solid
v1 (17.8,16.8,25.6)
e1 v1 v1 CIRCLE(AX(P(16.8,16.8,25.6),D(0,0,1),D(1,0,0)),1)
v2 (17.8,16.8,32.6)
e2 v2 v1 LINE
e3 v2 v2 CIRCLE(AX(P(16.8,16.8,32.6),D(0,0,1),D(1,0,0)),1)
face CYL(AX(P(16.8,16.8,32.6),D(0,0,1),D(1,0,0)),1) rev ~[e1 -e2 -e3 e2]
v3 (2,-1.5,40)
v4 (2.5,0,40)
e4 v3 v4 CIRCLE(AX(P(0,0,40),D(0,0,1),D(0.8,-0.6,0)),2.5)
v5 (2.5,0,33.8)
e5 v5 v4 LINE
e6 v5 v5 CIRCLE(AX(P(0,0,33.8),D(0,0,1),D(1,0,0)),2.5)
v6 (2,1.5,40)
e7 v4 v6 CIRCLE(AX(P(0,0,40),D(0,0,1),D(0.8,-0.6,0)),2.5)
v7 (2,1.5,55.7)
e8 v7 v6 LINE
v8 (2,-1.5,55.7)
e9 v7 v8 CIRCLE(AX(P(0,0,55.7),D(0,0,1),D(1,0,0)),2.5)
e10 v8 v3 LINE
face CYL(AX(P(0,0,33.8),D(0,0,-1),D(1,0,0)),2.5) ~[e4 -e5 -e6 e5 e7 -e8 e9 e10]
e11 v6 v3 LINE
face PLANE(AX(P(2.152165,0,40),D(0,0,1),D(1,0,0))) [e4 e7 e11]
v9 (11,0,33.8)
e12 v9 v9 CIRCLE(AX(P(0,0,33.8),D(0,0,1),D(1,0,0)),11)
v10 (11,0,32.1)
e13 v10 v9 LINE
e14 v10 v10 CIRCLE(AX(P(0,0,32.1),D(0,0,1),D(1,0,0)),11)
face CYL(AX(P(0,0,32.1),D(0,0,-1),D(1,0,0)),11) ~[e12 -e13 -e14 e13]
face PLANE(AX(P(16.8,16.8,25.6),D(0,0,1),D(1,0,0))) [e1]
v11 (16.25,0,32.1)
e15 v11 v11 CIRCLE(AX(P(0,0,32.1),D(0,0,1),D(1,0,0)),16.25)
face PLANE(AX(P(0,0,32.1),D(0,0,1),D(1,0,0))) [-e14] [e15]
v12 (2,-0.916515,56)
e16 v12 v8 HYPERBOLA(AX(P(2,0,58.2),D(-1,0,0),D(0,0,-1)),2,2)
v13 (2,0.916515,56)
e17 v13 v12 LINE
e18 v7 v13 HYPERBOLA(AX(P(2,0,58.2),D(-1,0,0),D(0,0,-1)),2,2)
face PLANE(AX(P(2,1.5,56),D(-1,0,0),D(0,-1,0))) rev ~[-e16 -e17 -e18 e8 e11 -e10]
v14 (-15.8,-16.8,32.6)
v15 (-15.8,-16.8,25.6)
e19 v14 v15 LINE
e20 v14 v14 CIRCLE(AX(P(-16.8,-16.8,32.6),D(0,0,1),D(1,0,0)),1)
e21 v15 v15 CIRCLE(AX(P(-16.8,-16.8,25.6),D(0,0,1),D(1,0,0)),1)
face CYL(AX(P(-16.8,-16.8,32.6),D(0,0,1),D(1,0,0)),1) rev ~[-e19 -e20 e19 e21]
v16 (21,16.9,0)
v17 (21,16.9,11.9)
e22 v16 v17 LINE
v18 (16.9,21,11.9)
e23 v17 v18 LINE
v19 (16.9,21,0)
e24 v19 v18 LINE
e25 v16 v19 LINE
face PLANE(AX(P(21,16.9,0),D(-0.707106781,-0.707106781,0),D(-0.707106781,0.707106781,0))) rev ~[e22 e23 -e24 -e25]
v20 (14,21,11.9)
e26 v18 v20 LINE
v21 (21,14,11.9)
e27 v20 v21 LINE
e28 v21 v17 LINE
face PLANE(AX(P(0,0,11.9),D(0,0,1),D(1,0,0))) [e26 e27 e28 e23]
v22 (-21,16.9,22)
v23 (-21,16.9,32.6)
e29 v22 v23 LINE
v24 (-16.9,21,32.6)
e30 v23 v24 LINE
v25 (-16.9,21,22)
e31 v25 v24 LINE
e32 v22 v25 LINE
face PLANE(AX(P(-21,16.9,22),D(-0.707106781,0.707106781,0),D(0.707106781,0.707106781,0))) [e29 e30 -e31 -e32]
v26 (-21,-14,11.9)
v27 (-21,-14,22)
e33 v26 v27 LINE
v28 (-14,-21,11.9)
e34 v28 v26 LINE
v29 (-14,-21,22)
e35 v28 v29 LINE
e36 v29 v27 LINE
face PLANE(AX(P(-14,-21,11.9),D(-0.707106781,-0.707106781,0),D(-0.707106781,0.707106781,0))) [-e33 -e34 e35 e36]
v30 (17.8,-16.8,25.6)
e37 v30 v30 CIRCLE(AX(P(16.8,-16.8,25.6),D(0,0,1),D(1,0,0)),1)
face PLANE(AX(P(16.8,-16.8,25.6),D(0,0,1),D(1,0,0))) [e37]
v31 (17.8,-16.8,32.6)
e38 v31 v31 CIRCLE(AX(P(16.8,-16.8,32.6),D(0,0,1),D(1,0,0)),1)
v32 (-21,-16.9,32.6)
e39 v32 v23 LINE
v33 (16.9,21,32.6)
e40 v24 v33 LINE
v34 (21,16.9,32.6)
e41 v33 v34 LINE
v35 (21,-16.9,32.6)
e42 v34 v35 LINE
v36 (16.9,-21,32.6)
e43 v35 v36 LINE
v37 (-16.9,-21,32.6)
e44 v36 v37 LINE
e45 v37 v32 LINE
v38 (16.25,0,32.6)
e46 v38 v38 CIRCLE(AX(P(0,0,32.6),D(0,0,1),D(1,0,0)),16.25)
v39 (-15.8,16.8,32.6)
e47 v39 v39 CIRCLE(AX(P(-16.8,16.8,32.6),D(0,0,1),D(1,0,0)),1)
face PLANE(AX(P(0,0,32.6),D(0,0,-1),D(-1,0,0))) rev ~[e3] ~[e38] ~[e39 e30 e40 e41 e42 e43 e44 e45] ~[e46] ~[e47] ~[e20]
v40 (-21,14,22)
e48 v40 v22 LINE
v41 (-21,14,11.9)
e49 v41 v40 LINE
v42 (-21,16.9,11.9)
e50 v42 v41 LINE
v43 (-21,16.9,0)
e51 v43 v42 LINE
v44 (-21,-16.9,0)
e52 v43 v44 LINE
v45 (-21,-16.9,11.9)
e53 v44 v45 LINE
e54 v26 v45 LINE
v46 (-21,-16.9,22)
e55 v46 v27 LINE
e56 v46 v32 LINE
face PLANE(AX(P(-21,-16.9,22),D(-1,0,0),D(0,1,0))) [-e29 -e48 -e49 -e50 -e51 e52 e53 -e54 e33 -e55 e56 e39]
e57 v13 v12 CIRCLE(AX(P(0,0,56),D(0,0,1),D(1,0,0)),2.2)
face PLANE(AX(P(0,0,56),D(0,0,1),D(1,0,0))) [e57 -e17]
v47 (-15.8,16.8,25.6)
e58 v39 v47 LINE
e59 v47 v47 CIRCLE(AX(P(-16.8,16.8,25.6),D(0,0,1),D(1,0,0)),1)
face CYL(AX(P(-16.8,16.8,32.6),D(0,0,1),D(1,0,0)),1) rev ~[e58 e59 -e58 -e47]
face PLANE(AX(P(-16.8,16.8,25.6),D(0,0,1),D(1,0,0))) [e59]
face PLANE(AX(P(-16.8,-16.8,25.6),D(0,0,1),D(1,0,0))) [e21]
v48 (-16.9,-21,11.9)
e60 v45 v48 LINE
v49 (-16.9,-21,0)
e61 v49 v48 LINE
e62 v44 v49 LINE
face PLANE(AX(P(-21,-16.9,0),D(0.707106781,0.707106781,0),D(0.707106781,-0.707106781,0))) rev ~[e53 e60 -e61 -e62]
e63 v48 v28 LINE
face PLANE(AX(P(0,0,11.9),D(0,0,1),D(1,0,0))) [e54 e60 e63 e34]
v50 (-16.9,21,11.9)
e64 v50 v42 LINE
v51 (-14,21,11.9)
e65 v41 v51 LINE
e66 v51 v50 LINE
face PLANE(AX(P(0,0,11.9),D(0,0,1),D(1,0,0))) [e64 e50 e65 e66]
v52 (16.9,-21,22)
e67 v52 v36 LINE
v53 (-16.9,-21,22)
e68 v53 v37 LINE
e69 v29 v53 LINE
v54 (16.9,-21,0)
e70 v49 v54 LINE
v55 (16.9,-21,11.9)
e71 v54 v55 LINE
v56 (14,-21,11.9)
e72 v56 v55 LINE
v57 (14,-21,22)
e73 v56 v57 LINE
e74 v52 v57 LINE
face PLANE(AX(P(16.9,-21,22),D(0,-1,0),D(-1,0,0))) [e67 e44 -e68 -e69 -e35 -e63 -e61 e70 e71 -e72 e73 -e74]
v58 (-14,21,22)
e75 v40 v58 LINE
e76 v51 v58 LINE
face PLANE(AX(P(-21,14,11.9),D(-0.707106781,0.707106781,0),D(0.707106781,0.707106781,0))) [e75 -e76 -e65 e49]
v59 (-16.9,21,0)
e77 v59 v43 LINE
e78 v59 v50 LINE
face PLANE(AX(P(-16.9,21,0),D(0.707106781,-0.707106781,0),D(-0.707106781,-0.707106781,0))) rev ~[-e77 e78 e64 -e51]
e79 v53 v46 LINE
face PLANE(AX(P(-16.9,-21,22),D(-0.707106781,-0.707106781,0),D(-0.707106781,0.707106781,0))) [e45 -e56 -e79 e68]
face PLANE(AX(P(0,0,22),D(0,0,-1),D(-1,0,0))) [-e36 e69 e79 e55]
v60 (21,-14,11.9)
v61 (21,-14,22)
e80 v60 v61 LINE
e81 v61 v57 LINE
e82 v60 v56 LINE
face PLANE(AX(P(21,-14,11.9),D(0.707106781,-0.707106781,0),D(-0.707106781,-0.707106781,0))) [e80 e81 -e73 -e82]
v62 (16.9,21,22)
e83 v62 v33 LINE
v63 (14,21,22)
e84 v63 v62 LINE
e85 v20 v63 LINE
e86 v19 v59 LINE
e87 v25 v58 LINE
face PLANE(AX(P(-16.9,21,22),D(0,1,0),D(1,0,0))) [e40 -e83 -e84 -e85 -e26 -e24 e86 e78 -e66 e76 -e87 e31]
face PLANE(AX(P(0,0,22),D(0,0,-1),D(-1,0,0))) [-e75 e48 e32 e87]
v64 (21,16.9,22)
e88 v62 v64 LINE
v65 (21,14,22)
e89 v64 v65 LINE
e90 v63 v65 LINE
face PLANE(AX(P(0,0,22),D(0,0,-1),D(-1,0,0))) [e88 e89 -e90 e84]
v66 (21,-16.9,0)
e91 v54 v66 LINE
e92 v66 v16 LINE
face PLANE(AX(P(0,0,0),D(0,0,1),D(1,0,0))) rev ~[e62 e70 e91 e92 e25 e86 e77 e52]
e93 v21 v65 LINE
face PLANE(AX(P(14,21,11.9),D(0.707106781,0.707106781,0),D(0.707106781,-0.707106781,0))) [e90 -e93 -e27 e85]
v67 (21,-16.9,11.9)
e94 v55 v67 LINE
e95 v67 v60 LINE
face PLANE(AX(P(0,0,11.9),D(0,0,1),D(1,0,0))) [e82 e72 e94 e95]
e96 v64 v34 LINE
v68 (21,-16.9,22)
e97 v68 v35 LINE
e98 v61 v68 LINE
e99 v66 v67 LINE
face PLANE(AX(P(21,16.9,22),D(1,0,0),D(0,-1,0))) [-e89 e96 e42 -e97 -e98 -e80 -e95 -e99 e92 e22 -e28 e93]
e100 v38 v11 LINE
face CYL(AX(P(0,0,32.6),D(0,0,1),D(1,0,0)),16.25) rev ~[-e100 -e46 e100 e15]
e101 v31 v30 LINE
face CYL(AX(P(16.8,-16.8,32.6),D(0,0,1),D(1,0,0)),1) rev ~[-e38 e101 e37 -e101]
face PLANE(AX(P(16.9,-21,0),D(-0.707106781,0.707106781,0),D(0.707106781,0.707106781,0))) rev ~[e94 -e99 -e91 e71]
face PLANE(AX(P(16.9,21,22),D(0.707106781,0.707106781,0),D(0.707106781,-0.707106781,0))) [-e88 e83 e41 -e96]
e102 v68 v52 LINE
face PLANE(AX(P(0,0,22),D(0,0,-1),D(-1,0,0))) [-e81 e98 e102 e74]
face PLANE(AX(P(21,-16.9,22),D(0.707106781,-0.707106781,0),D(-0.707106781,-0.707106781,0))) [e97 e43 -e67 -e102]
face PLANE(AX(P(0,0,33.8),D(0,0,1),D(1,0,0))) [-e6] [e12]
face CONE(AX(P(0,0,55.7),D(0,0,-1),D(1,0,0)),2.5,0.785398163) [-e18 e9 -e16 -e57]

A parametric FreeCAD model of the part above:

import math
import FreeCAD as App
import Part
import Sketcher
Q = App.Units.Quantity


def edges_at(feature, points):
    """Names of the edges that pass closest to the given points."""
    edges = feature.Shape.Edges
    near = lambda p: min(range(len(edges)), key=lambda i: edges[i].distToShape(Part.Vertex(*p))[0])
    return sorted({f"Edge{near(p) + 1}" for p in points})

doc = App.newDocument("Part")
params = doc.addObject("Spreadsheet::Sheet", "Params")
for row, (alias, value) in enumerate([
    ("sketch1_width", "33.8 mm"),
    ("pad1_length", "11.9 mm"),
    ("sketch2_width", "28 mm"),
    ("pad2_length", "10.1 mm"),
    ("sketch3_width", "33.8 mm"),
    ("pad3_length", "10.6 mm"),
    ("sketch4_diameter", "32.5 mm"),
    ("pocket1_length", "0.5 mm"),
    ("sketch5_diameter", "22 mm"),
    ("pad4_length", "1.7 mm"),
    ("sketch6_diameter", "5 mm"),
    ("pad5_length", "22.2 mm"),
    ("chamfer_size", "0.3 mm"),
    ("sketch7_radius", "2.5 mm"),
    ("sketch7_height", "3 mm"),
    ("pocket2_length", "16 mm"),
    ("sketch8_diameter", "2 mm"),
    ("pocket3_length", "7 mm"),
], start=1):
    params.set(f"A{row}", alias)
    params.set(f"B{row}", "=" + value)
    params.setAlias(f"B{row}", alias)

body = doc.addObject("PartDesign::Body", "Body")

# Sketch on XY plane
sketch1 = body.newObject("Sketcher::SketchObject", "Sketch")
sketch1.AttachmentSupport = (doc.getObject("XY_Plane"), [""])
sketch1.MapMode = "FlatFace"
sketch1.addGeometry([
    Part.LineSegment(App.Vector(21, -17, 0), App.Vector(21, 17, 0)),  # 0
    Part.LineSegment(App.Vector(21, 17, 0), App.Vector(17, 21, 0)),  # 1
    Part.LineSegment(App.Vector(17, 21, 0), App.Vector(-17, 21, 0)),  # 2
    Part.LineSegment(App.Vector(-17, 21, 0), App.Vector(-21, 17, 0)),  # 3
    Part.LineSegment(App.Vector(-21, 17, 0), App.Vector(-21, -17, 0)),  # 4
    Part.LineSegment(App.Vector(-21, -17, 0), App.Vector(-17, -21, 0)),  # 5
    Part.LineSegment(App.Vector(-17, -21, 0), App.Vector(17, -21, 0)),  # 6
    Part.LineSegment(App.Vector(17, -21, 0), App.Vector(21, -17, 0)),  # 7
], False)
sketch1.addConstraint([
    Sketcher.Constraint("Coincident", 0, 2, 1, 1),
    Sketcher.Constraint("Coincident", 1, 2, 2, 1),
    Sketcher.Constraint("Coincident", 2, 2, 3, 1),
    Sketcher.Constraint("Coincident", 3, 2, 4, 1),
    Sketcher.Constraint("Coincident", 4, 2, 5, 1),
    Sketcher.Constraint("Coincident", 5, 2, 6, 1),
    Sketcher.Constraint("Coincident", 6, 2, 7, 1),
    Sketcher.Constraint("Coincident", 7, 2, 0, 1),
    Sketcher.Constraint("Vertical", 0),
    Sketcher.Constraint("Horizontal", 2),
    Sketcher.Constraint("Vertical", 4),
    Sketcher.Constraint("Horizontal", 6),
    Sketcher.Constraint("Symmetric", 0, 2, 4, 2, -1, 1),
    Sketcher.Constraint("Symmetric", 1, 2, 5, 2, -1, 1),
    Sketcher.Constraint("Perpendicular", 1, 3),
    Sketcher.Constraint("Perpendicular", 5, 7),
    Sketcher.Constraint("Horizontal", 0, 2, 3, 2),
    Sketcher.Constraint("Horizontal", 4, 2, 7, 2),
    Sketcher.Constraint("Vertical", 2, 2, 5, 2),
    Sketcher.Constraint("Equal", 6, 0),
    Sketcher.Constraint("DistanceX", 2, 2, 2, 1, Q("33.8 mm")),
    Sketcher.Constraint("DistanceX", -1, 1, 0, 2, Q("21 mm")),
])
sketch1.setExpression("Constraints[20]", "Params.sketch1_width")
pad1 = body.newObject("PartDesign::Pad", "Pad")
pad1.Profile = sketch1
pad1.setExpression("Length", "Params.pad1_length")

# Sketch on XY plane
sketch2 = body.newObject("Sketcher::SketchObject", "Sketch001")
sketch2.AttachmentSupport = (doc.getObject("XY_Plane"), [""])
sketch2.MapMode = "FlatFace"
sketch2.AttachmentOffset = App.Placement(App.Vector(0, 0, 11.9), App.Rotation())
sketch2.addGeometry([
    Part.LineSegment(App.Vector(21, 14, 0), App.Vector(14, 21, 0)),  # 0
    Part.LineSegment(App.Vector(14, 21, 0), App.Vector(-14, 21, 0)),  # 1
    Part.LineSegment(App.Vector(-14, 21, 0), App.Vector(-21, 14, 0)),  # 2
    Part.LineSegment(App.Vector(-21, 14, 0), App.Vector(-21, -14, 0)),  # 3
    Part.LineSegment(App.Vector(-21, -14, 0), App.Vector(-14, -21, 0)),  # 4
    Part.LineSegment(App.Vector(-14, -21, 0), App.Vector(14, -21, 0)),  # 5
    Part.LineSegment(App.Vector(14, -21, 0), App.Vector(21, -14, 0)),  # 6
    Part.LineSegment(App.Vector(21, -14, 0), App.Vector(21, 14, 0)),  # 7
], False)
sketch2.addConstraint([
    Sketcher.Constraint("Coincident", 0, 2, 1, 1),
    Sketcher.Constraint("Coincident", 1, 2, 2, 1),
    Sketcher.Constraint("Coincident", 2, 2, 3, 1),
    Sketcher.Constraint("Coincident", 3, 2, 4, 1),
    Sketcher.Constraint("Coincident", 4, 2, 5, 1),
    Sketcher.Constraint("Coincident", 5, 2, 6, 1),
    Sketcher.Constraint("Coincident", 6, 2, 7, 1),
    Sketcher.Constraint("Coincident", 7, 2, 0, 1),
    Sketcher.Constraint("Horizontal", 1),
    Sketcher.Constraint("Vertical", 3),
    Sketcher.Constraint("Horizontal", 5),
    Sketcher.Constraint("Vertical", 7),
    Sketcher.Constraint("Symmetric", 0, 2, 4, 2, -1, 1),
    Sketcher.Constraint("Symmetric", 2, 2, 6, 2, -1, 1),
    Sketcher.Constraint("Perpendicular", 0, 2),
    Sketcher.Constraint("Perpendicular", 2, 4),
    Sketcher.Constraint("Perpendicular", 4, 6),
    Sketcher.Constraint("Horizontal", 3, 2, 6, 2),
    Sketcher.Constraint("Vertical", 1, 2, 4, 2),
    Sketcher.Constraint("Equal", 5, 3),
    Sketcher.Constraint("DistanceX", 1, 2, 1, 1, Q("28 mm")),
    Sketcher.Constraint("DistanceY", -1, 1, 0, 2, Q("21 mm")),
])
sketch2.setExpression("Constraints[20]", "Params.sketch2_width")
pad2 = body.newObject("PartDesign::Pad", "Pad001")
pad2.Profile = sketch2
pad2.setExpression("Length", "Params.pad2_length")

# Sketch on XY plane
sketch3 = body.newObject("Sketcher::SketchObject", "Sketch002")
sketch3.AttachmentSupport = (doc.getObject("XY_Plane"), [""])
sketch3.MapMode = "FlatFace"
sketch3.AttachmentOffset = App.Placement(App.Vector(0, 0, 22), App.Rotation())
sketch3.addGeometry([
    Part.LineSegment(App.Vector(21, 17, 0), App.Vector(17, 21, 0)),  # 0
    Part.LineSegment(App.Vector(17, 21, 0), App.Vector(-17, 21, 0)),  # 1
    Part.LineSegment(App.Vector(-17, 21, 0), App.Vector(-21, 17, 0)),  # 2
    Part.LineSegment(App.Vector(-21, 17, 0), App.Vector(-21, -17, 0)),  # 3
    Part.LineSegment(App.Vector(-21, -17, 0), App.Vector(-17, -21, 0)),  # 4
    Part.LineSegment(App.Vector(-17, -21, 0), App.Vector(17, -21, 0)),  # 5
    Part.LineSegment(App.Vector(17, -21, 0), App.Vector(21, -17, 0)),  # 6
    Part.LineSegment(App.Vector(21, -17, 0), App.Vector(21, 17, 0)),  # 7
], False)
sketch3.addConstraint([
    Sketcher.Constraint("Coincident", 0, 2, 1, 1),
    Sketcher.Constraint("Coincident", 1, 2, 2, 1),
    Sketcher.Constraint("Coincident", 2, 2, 3, 1),
    Sketcher.Constraint("Coincident", 3, 2, 4, 1),
    Sketcher.Constraint("Coincident", 4, 2, 5, 1),
    Sketcher.Constraint("Coincident", 5, 2, 6, 1),
    Sketcher.Constraint("Coincident", 6, 2, 7, 1),
    Sketcher.Constraint("Coincident", 7, 2, 0, 1),
    Sketcher.Constraint("Horizontal", 1),
    Sketcher.Constraint("Vertical", 3),
    Sketcher.Constraint("Horizontal", 5),
    Sketcher.Constraint("Vertical", 7),
    Sketcher.Constraint("Symmetric", 0, 2, 4, 2, -1, 1),
    Sketcher.Constraint("Symmetric", 2, 2, 6, 2, -1, 1),
    Sketcher.Constraint("Perpendicular", 0, 2),
    Sketcher.Constraint("Perpendicular", 2, 4),
    Sketcher.Constraint("Perpendicular", 4, 6),
    Sketcher.Constraint("Horizontal", 3, 2, 6, 2),
    Sketcher.Constraint("Vertical", 1, 2, 4, 2),
    Sketcher.Constraint("Equal", 5, 3),
    Sketcher.Constraint("DistanceX", 1, 2, 1, 1, Q("33.8 mm")),
    Sketcher.Constraint("DistanceY", -1, 1, 0, 2, Q("21 mm")),
])
sketch3.setExpression("Constraints[20]", "Params.sketch3_width")
pad3 = body.newObject("PartDesign::Pad", "Pad002")
pad3.Profile = sketch3
pad3.setExpression("Length", "Params.pad3_length")

# Sketch on XY plane
sketch4 = body.newObject("Sketcher::SketchObject", "Sketch003")
sketch4.AttachmentSupport = (doc.getObject("XY_Plane"), [""])
sketch4.MapMode = "FlatFace"
sketch4.AttachmentOffset = App.Placement(App.Vector(0, 0, 32.6), App.Rotation())
sketch4.addGeometry(Part.Circle(App.Vector(0, 0, 0), App.Vector(0, 0, 1), 16), False)
sketch4.addConstraint([
    Sketcher.Constraint("Coincident", 0, 3, -1, 1),
    Sketcher.Constraint("Diameter", 0, Q("32.5 mm")),
])
sketch4.setExpression("Constraints[1]", "Params.sketch4_diameter")
pocket1 = body.newObject("PartDesign::Pocket", "Pocket")
pocket1.Profile = sketch4
pocket1.setExpression("Length", "Params.pocket1_length")

# Sketch on XY plane
sketch5 = body.newObject("Sketcher::SketchObject", "Sketch004")
sketch5.AttachmentSupport = (doc.getObject("XY_Plane"), [""])
sketch5.MapMode = "FlatFace"
sketch5.AttachmentOffset = App.Placement(App.Vector(0, 0, 32.1), App.Rotation())
sketch5.addGeometry(Part.Circle(App.Vector(0, 0, 0), App.Vector(0, 0, 1), 11), False)
sketch5.addConstraint([
    Sketcher.Constraint("Coincident", 0, 3, -1, 1),
    Sketcher.Constraint("Diameter", 0, Q("22 mm")),
])
sketch5.setExpression("Constraints[1]", "Params.sketch5_diameter")
pad4 = body.newObject("PartDesign::Pad", "Pad003")
pad4.Profile = sketch5
pad4.setExpression("Length", "Params.pad4_length")

# Sketch on XY plane
sketch6 = body.newObject("Sketcher::SketchObject", "Sketch005")
sketch6.AttachmentSupport = (doc.getObject("XY_Plane"), [""])
sketch6.MapMode = "FlatFace"
sketch6.AttachmentOffset = App.Placement(App.Vector(0, 0, 33.8), App.Rotation())
sketch6.addGeometry(Part.Circle(App.Vector(0, 0, 0), App.Vector(0, 0, 1), 2.5), False)
sketch6.addConstraint([
    Sketcher.Constraint("Coincident", 0, 3, -1, 1),
    Sketcher.Constraint("Diameter", 0, Q("5 mm")),
])
sketch6.setExpression("Constraints[1]", "Params.sketch6_diameter")
pad5 = body.newObject("PartDesign::Pad", "Pad004")
pad5.Profile = sketch6
pad5.setExpression("Length", "Params.pad5_length")
doc.recompute()

chamfer = body.newObject("PartDesign::Chamfer", "Chamfer")
chamfer.Base = (pad5, edges_at(pad5, [(-2.5, 0, 56)]))
chamfer.setExpression("Size", "Params.chamfer_size")

# Sketch on XY plane
sketch7 = body.newObject("Sketcher::SketchObject", "Sketch006")
sketch7.AttachmentSupport = (doc.getObject("XY_Plane"), [""])
sketch7.MapMode = "FlatFace"
sketch7.AttachmentOffset = App.Placement(App.Vector(0, 0, 56), App.Rotation())
sketch7.addGeometry([
    Part.LineSegment(App.Vector(2, 1.5, 0), App.Vector(2, -1.5, 0)),
    Part.ArcOfCircle(Part.Circle(App.Vector(0, 0, 0), App.Vector(0, 0, 1), 2.5), math.radians(-37), math.radians(37)),
], False)
sketch7.addConstraint([
    Sketcher.Constraint("Coincident", 0, 1, 1, 2),
    Sketcher.Constraint("Coincident", 1, 1, 0, 2),
    Sketcher.Constraint("Vertical", 0),
    Sketcher.Constraint("Coincident", 1, 3, -1, 1),
    Sketcher.Constraint("Radius", 1, Q("2.5 mm")),
    Sketcher.Constraint("DistanceY", 0, 2, 0, 1, Q("3 mm")),
])
sketch7.setExpression("Constraints[4]", "Params.sketch7_radius")
sketch7.setExpression("Constraints[5]", "Params.sketch7_height")
pocket2 = body.newObject("PartDesign::Pocket", "Pocket001")
pocket2.Profile = sketch7
pocket2.setExpression("Length", "Params.pocket2_length")

# Sketch on XY plane
sketch8 = body.newObject("Sketcher::SketchObject", "Sketch007")
sketch8.AttachmentSupport = (doc.getObject("XY_Plane"), [""])
sketch8.MapMode = "FlatFace"
sketch8.AttachmentOffset = App.Placement(App.Vector(0, 0, 32.6), App.Rotation())
sketch8.addGeometry([
    Part.Circle(App.Vector(-16.8, 16.8, 0), App.Vector(0, 0, 1), 1),
    Part.Circle(App.Vector(-16.8, -16.8, 0), App.Vector(0, 0, 1), 1),
    Part.Circle(App.Vector(16.8, -16.8, 0), App.Vector(0, 0, 1), 1),
    Part.Circle(App.Vector(16.8, 16.8, 0), App.Vector(0, 0, 1), 1),
], False)
sketch8.addConstraint([
    Sketcher.Constraint("Equal", 0, 1),
    Sketcher.Constraint("Equal", 1, 2),
    Sketcher.Constraint("Equal", 2, 3),
    Sketcher.Constraint("Symmetric", 0, 3, 2, 3, -1, 1),
    Sketcher.Constraint("Symmetric", 1, 3, 3, 3, -1, 1),
    Sketcher.Constraint("Symmetric", 1, 3, 2, 3, -2),
    Sketcher.Constraint("Diameter", 0, Q("2 mm")),
    Sketcher.Constraint("DistanceX", 0, 3, -1, 1, Q("16.8 mm")),
    Sketcher.Constraint("DistanceY", -1, 1, 0, 3, Q("16.8 mm")),
])
sketch8.setExpression("Constraints[6]", "Params.sketch8_diameter")
pocket3 = body.newObject("PartDesign::Pocket", "Pocket002")
pocket3.Profile = sketch8
pocket3.setExpression("Length", "Params.pocket3_length")

doc.recompute()
